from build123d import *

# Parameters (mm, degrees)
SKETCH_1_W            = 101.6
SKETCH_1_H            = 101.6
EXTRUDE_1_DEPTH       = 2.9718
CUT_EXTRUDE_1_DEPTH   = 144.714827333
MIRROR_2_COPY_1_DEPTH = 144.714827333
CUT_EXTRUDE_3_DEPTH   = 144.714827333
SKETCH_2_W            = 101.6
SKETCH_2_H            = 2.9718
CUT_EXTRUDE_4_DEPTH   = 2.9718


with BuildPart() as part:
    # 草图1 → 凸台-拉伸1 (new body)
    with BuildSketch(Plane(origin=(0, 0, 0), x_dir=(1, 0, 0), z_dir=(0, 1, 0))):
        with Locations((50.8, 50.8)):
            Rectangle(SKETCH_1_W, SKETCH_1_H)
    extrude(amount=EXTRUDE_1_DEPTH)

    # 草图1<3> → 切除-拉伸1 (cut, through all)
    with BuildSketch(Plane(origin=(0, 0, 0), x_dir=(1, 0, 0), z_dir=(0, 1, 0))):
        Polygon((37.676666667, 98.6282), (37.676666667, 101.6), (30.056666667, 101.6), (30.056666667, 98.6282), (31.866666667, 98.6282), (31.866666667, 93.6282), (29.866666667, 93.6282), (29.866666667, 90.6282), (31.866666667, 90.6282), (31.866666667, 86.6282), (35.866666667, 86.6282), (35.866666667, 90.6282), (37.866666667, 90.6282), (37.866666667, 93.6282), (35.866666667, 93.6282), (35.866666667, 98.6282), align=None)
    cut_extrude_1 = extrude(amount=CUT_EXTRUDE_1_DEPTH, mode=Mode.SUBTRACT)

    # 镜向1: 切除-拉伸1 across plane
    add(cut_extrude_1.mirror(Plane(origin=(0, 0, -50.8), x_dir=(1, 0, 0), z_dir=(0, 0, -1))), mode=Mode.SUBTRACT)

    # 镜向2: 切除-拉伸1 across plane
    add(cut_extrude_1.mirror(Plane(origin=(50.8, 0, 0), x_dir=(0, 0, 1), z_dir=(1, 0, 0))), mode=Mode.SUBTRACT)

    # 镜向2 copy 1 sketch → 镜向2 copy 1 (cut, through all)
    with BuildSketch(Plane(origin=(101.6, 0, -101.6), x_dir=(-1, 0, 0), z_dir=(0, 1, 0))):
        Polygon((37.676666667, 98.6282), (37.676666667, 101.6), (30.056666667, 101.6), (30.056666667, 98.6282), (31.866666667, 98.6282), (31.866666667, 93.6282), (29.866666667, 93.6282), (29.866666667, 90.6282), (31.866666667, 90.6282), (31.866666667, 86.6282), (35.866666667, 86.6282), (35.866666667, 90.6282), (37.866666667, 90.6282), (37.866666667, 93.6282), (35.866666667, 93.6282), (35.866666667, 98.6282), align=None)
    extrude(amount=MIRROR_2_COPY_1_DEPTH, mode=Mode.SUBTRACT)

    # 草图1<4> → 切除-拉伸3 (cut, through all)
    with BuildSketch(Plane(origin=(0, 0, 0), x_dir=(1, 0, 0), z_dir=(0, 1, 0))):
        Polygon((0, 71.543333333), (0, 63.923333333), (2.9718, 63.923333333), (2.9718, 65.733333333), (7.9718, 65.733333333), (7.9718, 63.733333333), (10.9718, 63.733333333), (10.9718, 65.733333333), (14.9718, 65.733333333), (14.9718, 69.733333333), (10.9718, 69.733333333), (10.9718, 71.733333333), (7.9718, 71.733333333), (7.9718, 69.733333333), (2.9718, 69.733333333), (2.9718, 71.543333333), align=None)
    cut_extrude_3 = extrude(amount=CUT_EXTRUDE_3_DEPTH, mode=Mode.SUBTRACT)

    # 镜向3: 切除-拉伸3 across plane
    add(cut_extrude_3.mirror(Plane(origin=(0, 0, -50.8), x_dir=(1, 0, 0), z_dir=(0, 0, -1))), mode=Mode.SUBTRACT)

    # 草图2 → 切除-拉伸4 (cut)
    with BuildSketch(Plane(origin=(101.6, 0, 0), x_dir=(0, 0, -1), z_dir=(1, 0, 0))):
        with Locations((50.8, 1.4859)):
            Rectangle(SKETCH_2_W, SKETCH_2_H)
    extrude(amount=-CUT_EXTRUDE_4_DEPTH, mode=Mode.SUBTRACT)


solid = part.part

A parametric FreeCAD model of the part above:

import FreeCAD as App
import Part
import Sketcher
Q = App.Units.Quantity


def add_polygon(sketch, points):
    """Adds a closed chain of lines whose ends are joined by coincident constraints."""
    first, n = sketch.GeometryCount, len(points)
    for a, b in zip(points, points[1:] + points[:1]):
        sketch.addGeometry(Part.LineSegment(App.Vector(*a, 0), App.Vector(*b, 0)), False)
    for i in range(n):
        sketch.addConstraint(Sketcher.Constraint("Coincident", first + i, 2, first + (i + 1) % n, 1))

doc = App.newDocument("Part")
body = doc.addObject("PartDesign::Body", "Body")

sketch1 = body.newObject("Sketcher::SketchObject", "Sketch")
sketch1.AttachmentSupport = (doc.getObject("XZ_Plane"), [""])
sketch1.MapMode = "FlatFace"
add_polygon(sketch1, [(0, -102), (0, 0), (102, 0), (102, -102)])
sketch1.addConstraint(Sketcher.Constraint("Vertical", 0))
sketch1.addConstraint(Sketcher.Constraint("Horizontal", 1))
sketch1.addConstraint(Sketcher.Constraint("Vertical", 2))
sketch1.addConstraint(Sketcher.Constraint("Horizontal", 3))
sketch1.addConstraint(Sketcher.Constraint("Coincident", 0, 2, -1, 1))
sketch1.addConstraint(Sketcher.Constraint("Equal", 3, 0))
sketch1.addConstraint(Sketcher.Constraint("DistanceX", 1, 1, 1, 2, Q("101.6 mm")))
pad1 = body.newObject("PartDesign::Pad", "Pad")
pad1.Profile = sketch1
pad1.Length = 2.9718
pad1.Reversed = True

sketch2 = body.newObject("Sketcher::SketchObject", "Sketch001")
sketch2.AttachmentSupport = (doc.getObject("XZ_Plane"), [""])
sketch2.MapMode = "FlatFace"
add_polygon(sketch2, [(37.7, -98.6), (37.7, -101.6), (30.1, -101.6), (30.1, -98.6), (31.9, -98.6), (31.9, -93.6), (29.9, -93.6), (29.9, -90.6), (31.9, -90.6), (31.9, -86.6), (35.9, -86.6), (35.9, -90.6), (37.9, -90.6), (37.9, -93.6), (35.9, -93.6), (35.9, -98.6)])
sketch2.addConstraint(Sketcher.Constraint("Vertical", 0))
sketch2.addConstraint(Sketcher.Constraint("Horizontal", 1))
sketch2.addConstraint(Sketcher.Constraint("Vertical", 2))
sketch2.addConstraint(Sketcher.Constraint("Horizontal", 3))
sketch2.addConstraint(Sketcher.Constraint("Vertical", 4))
sketch2.addConstraint(Sketcher.Constraint("Horizontal", 5))
sketch2.addConstraint(Sketcher.Constraint("Vertical", 6))
sketch2.addConstraint(Sketcher.Constraint("Horizontal", 7))
sketch2.addConstraint(Sketcher.Constraint("Vertical", 8))
sketch2.addConstraint(Sketcher.Constraint("Horizontal", 9))
sketch2.addConstraint(Sketcher.Constraint("Vertical", 10))
sketch2.addConstraint(Sketcher.Constraint("Horizontal", 11))
sketch2.addConstraint(Sketcher.Constraint("Vertical", 12))
sketch2.addConstraint(Sketcher.Constraint("Horizontal", 13))
sketch2.addConstraint(Sketcher.Constraint("Vertical", 14))
sketch2.addConstraint(Sketcher.Constraint("Horizontal", 15))
sketch2.addConstraint(Sketcher.Constraint("Horizontal", 7, 2, 10, 2))
sketch2.addConstraint(Sketcher.Constraint("Horizontal", 5, 2, 12, 2))
sketch2.addConstraint(Sketcher.Constraint("Horizontal", 3, 2, 14, 2))
sketch2.addConstraint(Sketcher.Constraint("Vertical", 4, 2, 7, 2))
sketch2.addConstraint(Sketcher.Constraint("Vertical", 10, 2, 13, 2))
sketch2.addConstraint(Sketcher.Constraint("Equal", 7, 11))
sketch2.addConstraint(Sketcher.Constraint("Equal", 3, 15))
sketch2.addConstraint(Sketcher.Constraint("Equal", 9, 8))
sketch2.addConstraint(Sketcher.Constraint("DistanceX", 5, 2, 5, 1, Q("2 mm")))
sketch2.addConstraint(Sketcher.Constraint("DistanceX", 9, 1, 9, 2, Q("4 mm")))
sketch2.addConstraint(Sketcher.Constraint("DistanceY", 4, 1, 4, 2, Q("5 mm")))
sketch2.addConstraint(Sketcher.Constraint("DistanceY", 6, 1, 6, 2, Q("3 mm")))
sketch2.addConstraint(Sketcher.Constraint("DistanceX", 1, 2, 1, 1, Q("7.62 mm")))
sketch2.addConstraint(Sketcher.Constraint("DistanceY", 0, 2, -1, 1, Q("101.6 mm")))
sketch2.addConstraint(Sketcher.Constraint("DistanceY", 0, 2, 0, 1, Q("2.9718 mm")))
sketch2.addConstraint(Sketcher.Constraint("DistanceX", -1, 1, 0, 2, Q("37.676667 mm")))
pocket1 = body.newObject("PartDesign::Pocket", "Pocket")
pocket1.Profile = sketch2
pocket1.Type = "ThroughAll"
doc.recompute()

datumplane = body.newObject("PartDesign::Plane", "DatumPlane")
datumplane.AttachmentSupport = (doc.getObject("XY_Plane"), [""])
datumplane.MapMode = "FlatFace"
datumplane.AttachmentOffset = App.Placement(App.Vector(0, 0, -50.8), App.Rotation())
mirrored = body.newObject("PartDesign::Mirrored", "Mirrored")
mirrored.Originals = [pocket1]
mirrored.MirrorPlane = (datumplane, [""])
body.Tip = mirrored
doc.recompute()

datumplane2 = body.newObject("PartDesign::Plane", "DatumPlane001")
datumplane2.AttachmentSupport = (doc.getObject("YZ_Plane"), [""])
datumplane2.MapMode = "FlatFace"
datumplane2.AttachmentOffset = App.Placement(App.Vector(0, 0, 50.8), App.Rotation())
mirrored2 = body.newObject("PartDesign::Mirrored", "Mirrored001")
mirrored2.Originals = [pocket1]
mirrored2.MirrorPlane = (datumplane2, [""])
body.Tip = mirrored2

sketch3 = body.newObject("Sketcher::SketchObject", "Sketch002")
sketch3.AttachmentSupport = (doc.getObject("XZ_Plane"), [""])
sketch3.MapMode = "FlatFace"
add_polygon(sketch3, [(63.9, -3), (63.9, 0), (71.5, 0), (71.5, -3), (69.7, -3), (69.7, -8), (71.7, -8), (71.7, -11), (69.7, -11), (69.7, -15), (65.7, -15), (65.7, -11), (63.7, -11), (63.7, -8), (65.7, -8), (65.7, -3)])
sketch3.addConstraint(Sketcher.Constraint("Vertical", 0))
sketch3.addConstraint(Sketcher.Constraint("Horizontal", 1))
sketch3.addConstraint(Sketcher.Constraint("Vertical", 2))
sketch3.addConstraint(Sketcher.Constraint("Horizontal", 3))
sketch3.addConstraint(Sketcher.Constraint("Vertical", 4))
sketch3.addConstraint(Sketcher.Constraint("Horizontal", 5))
sketch3.addConstraint(Sketcher.Constraint("Vertical", 6))
sketch3.addConstraint(Sketcher.Constraint("Horizontal", 7))
sketch3.addConstraint(Sketcher.Constraint("Vertical", 8))
sketch3.addConstraint(Sketcher.Constraint("Horizontal", 9))
sketch3.addConstraint(Sketcher.Constraint("Vertical", 10))
sketch3.addConstraint(Sketcher.Constraint("Horizontal", 11))
sketch3.addConstraint(Sketcher.Constraint("Vertical", 12))
sketch3.addConstraint(Sketcher.Constraint("Horizontal", 13))
sketch3.addConstraint(Sketcher.Constraint("Vertical", 14))
sketch3.addConstraint(Sketcher.Constraint("Horizontal", 15))
sketch3.addConstraint(Sketcher.Constraint("PointOnObject", 0, 2, -1))
sketch3.addConstraint(Sketcher.Constraint("Horizontal", 7, 2, 10, 2))
sketch3.addConstraint(Sketcher.Constraint("Horizontal", 5, 2, 12, 2))
sketch3.addConstraint(Sketcher.Constraint("Horizontal", 3, 2, 14, 2))
sketch3.addConstraint(Sketcher.Constraint("Vertical", 4, 2, 7, 2))
sketch3.addConstraint(Sketcher.Constraint("Vertical", 10, 2, 13, 2))
sketch3.addConstraint(Sketcher.Constraint("Equal", 7, 11))
sketch3.addConstraint(Sketcher.Constraint("Equal", 3, 15))
sketch3.addConstraint(Sketcher.Constraint("Equal", 9, 8))
sketch3.addConstraint(Sketcher.Constraint("DistanceX", 5, 1, 5, 2, Q("2 mm")))
sketch3.addConstraint(Sketcher.Constraint("DistanceX", 9, 2, 9, 1, Q("4 mm")))
sketch3.addConstraint(Sketcher.Constraint("DistanceY", 4, 2, 4, 1, Q("5 mm")))
sketch3.addConstraint(Sketcher.Constraint("DistanceY", 6, 2, 6, 1, Q("3 mm")))
sketch3.addConstraint(Sketcher.Constraint("DistanceX", 1, 1, 1, 2, Q("7.62 mm")))
sketch3.addConstraint(Sketcher.Constraint("DistanceY", 0, 1, 0, 2, Q("2.9718 mm")))
sketch3.addConstraint(Sketcher.Constraint("DistanceX", -1, 1, 0, 2, Q("63.923333 mm")))
pocket2 = body.newObject("PartDesign::Pocket", "Pocket001")
pocket2.Profile = sketch3
pocket2.Type = "ThroughAll"

sketch4 = body.newObject("Sketcher::SketchObject", "Sketch003")
sketch4.AttachmentSupport = (doc.getObject("XZ_Plane"), [""])
sketch4.MapMode = "FlatFace"
add_polygon(sketch4, [(0, -71.5), (0, -63.9), (3, -63.9), (3, -65.7), (8, -65.7), (8, -63.7), (11, -63.7), (11, -65.7), (15, -65.7), (15, -69.7), (11, -69.7), (11, -71.7), (8, -71.7), (8, -69.7), (3, -69.7), (3, -71.5)])
sketch4.addConstraint(Sketcher.Constraint("Vertical", 0))
sketch4.addConstraint(Sketcher.Constraint("Horizontal", 1))
sketch4.addConstraint(Sketcher.Constraint("Vertical", 2))
sketch4.addConstraint(Sketcher.Constraint("Horizontal", 3))
sketch4.addConstraint(Sketcher.Constraint("Vertical", 4))
sketch4.addConstraint(Sketcher.Constraint("Horizontal", 5))
sketch4.addConstraint(Sketcher.Constraint("Vertical", 6))
sketch4.addConstraint(Sketcher.Constraint("Horizontal", 7))
sketch4.addConstraint(Sketcher.Constraint("Vertical", 8))
sketch4.addConstraint(Sketcher.Constraint("Horizontal", 9))
sketch4.addConstraint(Sketcher.Constraint("Vertical", 10))
sketch4.addConstraint(Sketcher.Constraint("Horizontal", 11))
sketch4.addConstraint(Sketcher.Constraint("Vertical", 12))
sketch4.addConstraint(Sketcher.Constraint("Horizontal", 13))
sketch4.addConstraint(Sketcher.Constraint("Vertical", 14))
sketch4.addConstraint(Sketcher.Constraint("Horizontal", 15))
sketch4.addConstraint(Sketcher.Constraint("PointOnObject", 0, 2, -2))
sketch4.addConstraint(Sketcher.Constraint("Horizontal", 3, 2, 6, 2))
sketch4.addConstraint(Sketcher.Constraint("Horizontal", 9, 2, 12, 2))
sketch4.addConstraint(Sketcher.Constraint("Vertical", 6, 2, 9, 2))
sketch4.addConstraint(Sketcher.Constraint("Vertical", 4, 2, 11, 2))
sketch4.addConstraint(Sketcher.Constraint("Vertical", 2, 2, 13, 2))
sketch4.addConstraint(Sketcher.Constraint("Equal", 9, 8))
sketch4.addConstraint(Sketcher.Constraint("Equal", 6, 10))
sketch4.addConstraint(Sketcher.Constraint("Equal", 2, 14))
sketch4.addConstraint(Sketcher.Constraint("DistanceX", 3, 1, 3, 2, Q("5 mm")))
sketch4.addConstraint(Sketcher.Constraint("DistanceX", 5, 1, 5, 2, Q("3 mm")))
sketch4.addConstraint(Sketcher.Constraint("DistanceX", 7, 1, 7, 2, Q("4 mm")))
sketch4.addConstraint(Sketcher.Constraint("DistanceY", 4, 1, 4, 2, Q("2 mm")))
sketch4.addConstraint(Sketcher.Constraint("DistanceY", 0, 1, 0, 2, Q("7.62 mm")))
sketch4.addConstraint(Sketcher.Constraint("DistanceX", 1, 1, 1, 2, Q("2.9718 mm")))
sketch4.addConstraint(Sketcher.Constraint("DistanceY", 0, 2, -1, 1, Q("63.923333 mm")))
pocket3 = body.newObject("PartDesign::Pocket", "Pocket002")
pocket3.Profile = sketch4
pocket3.Type = "ThroughAll"
doc.recompute()

datumplane3 = body.newObject("PartDesign::Plane", "DatumPlane002")
datumplane3.AttachmentSupport = (doc.getObject("XY_Plane"), [""])
datumplane3.MapMode = "FlatFace"
datumplane3.AttachmentOffset = App.Placement(App.Vector(0, 0, -50.8), App.Rotation())
mirrored3 = body.newObject("PartDesign::Mirrored", "Mirrored002")
mirrored3.Originals = [pocket3]
mirrored3.MirrorPlane = (datumplane3, [""])
body.Tip = mirrored3

sketch5 = body.newObject("Sketcher::SketchObject", "Sketch004")
sketch5.AttachmentSupport = (doc.getObject("YZ_Plane"), [""])
sketch5.MapMode = "FlatFace"
sketch5.AttachmentOffset = App.Placement(App.Vector(0, 0, 101.6), App.Rotation())
add_polygon(sketch5, [(3, 0), (0, 0), (0, -101.6), (3, -101.6)])
sketch5.addConstraint(Sketcher.Constraint("Horizontal", 0))
sketch5.addConstraint(Sketcher.Constraint("Vertical", 1))
sketch5.addConstraint(Sketcher.Constraint("Horizontal", 2))
sketch5.addConstraint(Sketcher.Constraint("Vertical", 3))
sketch5.addConstraint(Sketcher.Constraint("Coincident", 0, 2, -1, 1))
sketch5.addConstraint(Sketcher.Constraint("DistanceY", 1, 2, 1, 1, Q("101.6 mm")))
sketch5.addConstraint(Sketcher.Constraint("DistanceX", 0, 2, 0, 1, Q("2.9718 mm")))
pocket4 = body.newObject("PartDesign::Pocket", "Pocket003")
pocket4.Profile = sketch5
pocket4.Length = 2.9718

doc.recompute()
